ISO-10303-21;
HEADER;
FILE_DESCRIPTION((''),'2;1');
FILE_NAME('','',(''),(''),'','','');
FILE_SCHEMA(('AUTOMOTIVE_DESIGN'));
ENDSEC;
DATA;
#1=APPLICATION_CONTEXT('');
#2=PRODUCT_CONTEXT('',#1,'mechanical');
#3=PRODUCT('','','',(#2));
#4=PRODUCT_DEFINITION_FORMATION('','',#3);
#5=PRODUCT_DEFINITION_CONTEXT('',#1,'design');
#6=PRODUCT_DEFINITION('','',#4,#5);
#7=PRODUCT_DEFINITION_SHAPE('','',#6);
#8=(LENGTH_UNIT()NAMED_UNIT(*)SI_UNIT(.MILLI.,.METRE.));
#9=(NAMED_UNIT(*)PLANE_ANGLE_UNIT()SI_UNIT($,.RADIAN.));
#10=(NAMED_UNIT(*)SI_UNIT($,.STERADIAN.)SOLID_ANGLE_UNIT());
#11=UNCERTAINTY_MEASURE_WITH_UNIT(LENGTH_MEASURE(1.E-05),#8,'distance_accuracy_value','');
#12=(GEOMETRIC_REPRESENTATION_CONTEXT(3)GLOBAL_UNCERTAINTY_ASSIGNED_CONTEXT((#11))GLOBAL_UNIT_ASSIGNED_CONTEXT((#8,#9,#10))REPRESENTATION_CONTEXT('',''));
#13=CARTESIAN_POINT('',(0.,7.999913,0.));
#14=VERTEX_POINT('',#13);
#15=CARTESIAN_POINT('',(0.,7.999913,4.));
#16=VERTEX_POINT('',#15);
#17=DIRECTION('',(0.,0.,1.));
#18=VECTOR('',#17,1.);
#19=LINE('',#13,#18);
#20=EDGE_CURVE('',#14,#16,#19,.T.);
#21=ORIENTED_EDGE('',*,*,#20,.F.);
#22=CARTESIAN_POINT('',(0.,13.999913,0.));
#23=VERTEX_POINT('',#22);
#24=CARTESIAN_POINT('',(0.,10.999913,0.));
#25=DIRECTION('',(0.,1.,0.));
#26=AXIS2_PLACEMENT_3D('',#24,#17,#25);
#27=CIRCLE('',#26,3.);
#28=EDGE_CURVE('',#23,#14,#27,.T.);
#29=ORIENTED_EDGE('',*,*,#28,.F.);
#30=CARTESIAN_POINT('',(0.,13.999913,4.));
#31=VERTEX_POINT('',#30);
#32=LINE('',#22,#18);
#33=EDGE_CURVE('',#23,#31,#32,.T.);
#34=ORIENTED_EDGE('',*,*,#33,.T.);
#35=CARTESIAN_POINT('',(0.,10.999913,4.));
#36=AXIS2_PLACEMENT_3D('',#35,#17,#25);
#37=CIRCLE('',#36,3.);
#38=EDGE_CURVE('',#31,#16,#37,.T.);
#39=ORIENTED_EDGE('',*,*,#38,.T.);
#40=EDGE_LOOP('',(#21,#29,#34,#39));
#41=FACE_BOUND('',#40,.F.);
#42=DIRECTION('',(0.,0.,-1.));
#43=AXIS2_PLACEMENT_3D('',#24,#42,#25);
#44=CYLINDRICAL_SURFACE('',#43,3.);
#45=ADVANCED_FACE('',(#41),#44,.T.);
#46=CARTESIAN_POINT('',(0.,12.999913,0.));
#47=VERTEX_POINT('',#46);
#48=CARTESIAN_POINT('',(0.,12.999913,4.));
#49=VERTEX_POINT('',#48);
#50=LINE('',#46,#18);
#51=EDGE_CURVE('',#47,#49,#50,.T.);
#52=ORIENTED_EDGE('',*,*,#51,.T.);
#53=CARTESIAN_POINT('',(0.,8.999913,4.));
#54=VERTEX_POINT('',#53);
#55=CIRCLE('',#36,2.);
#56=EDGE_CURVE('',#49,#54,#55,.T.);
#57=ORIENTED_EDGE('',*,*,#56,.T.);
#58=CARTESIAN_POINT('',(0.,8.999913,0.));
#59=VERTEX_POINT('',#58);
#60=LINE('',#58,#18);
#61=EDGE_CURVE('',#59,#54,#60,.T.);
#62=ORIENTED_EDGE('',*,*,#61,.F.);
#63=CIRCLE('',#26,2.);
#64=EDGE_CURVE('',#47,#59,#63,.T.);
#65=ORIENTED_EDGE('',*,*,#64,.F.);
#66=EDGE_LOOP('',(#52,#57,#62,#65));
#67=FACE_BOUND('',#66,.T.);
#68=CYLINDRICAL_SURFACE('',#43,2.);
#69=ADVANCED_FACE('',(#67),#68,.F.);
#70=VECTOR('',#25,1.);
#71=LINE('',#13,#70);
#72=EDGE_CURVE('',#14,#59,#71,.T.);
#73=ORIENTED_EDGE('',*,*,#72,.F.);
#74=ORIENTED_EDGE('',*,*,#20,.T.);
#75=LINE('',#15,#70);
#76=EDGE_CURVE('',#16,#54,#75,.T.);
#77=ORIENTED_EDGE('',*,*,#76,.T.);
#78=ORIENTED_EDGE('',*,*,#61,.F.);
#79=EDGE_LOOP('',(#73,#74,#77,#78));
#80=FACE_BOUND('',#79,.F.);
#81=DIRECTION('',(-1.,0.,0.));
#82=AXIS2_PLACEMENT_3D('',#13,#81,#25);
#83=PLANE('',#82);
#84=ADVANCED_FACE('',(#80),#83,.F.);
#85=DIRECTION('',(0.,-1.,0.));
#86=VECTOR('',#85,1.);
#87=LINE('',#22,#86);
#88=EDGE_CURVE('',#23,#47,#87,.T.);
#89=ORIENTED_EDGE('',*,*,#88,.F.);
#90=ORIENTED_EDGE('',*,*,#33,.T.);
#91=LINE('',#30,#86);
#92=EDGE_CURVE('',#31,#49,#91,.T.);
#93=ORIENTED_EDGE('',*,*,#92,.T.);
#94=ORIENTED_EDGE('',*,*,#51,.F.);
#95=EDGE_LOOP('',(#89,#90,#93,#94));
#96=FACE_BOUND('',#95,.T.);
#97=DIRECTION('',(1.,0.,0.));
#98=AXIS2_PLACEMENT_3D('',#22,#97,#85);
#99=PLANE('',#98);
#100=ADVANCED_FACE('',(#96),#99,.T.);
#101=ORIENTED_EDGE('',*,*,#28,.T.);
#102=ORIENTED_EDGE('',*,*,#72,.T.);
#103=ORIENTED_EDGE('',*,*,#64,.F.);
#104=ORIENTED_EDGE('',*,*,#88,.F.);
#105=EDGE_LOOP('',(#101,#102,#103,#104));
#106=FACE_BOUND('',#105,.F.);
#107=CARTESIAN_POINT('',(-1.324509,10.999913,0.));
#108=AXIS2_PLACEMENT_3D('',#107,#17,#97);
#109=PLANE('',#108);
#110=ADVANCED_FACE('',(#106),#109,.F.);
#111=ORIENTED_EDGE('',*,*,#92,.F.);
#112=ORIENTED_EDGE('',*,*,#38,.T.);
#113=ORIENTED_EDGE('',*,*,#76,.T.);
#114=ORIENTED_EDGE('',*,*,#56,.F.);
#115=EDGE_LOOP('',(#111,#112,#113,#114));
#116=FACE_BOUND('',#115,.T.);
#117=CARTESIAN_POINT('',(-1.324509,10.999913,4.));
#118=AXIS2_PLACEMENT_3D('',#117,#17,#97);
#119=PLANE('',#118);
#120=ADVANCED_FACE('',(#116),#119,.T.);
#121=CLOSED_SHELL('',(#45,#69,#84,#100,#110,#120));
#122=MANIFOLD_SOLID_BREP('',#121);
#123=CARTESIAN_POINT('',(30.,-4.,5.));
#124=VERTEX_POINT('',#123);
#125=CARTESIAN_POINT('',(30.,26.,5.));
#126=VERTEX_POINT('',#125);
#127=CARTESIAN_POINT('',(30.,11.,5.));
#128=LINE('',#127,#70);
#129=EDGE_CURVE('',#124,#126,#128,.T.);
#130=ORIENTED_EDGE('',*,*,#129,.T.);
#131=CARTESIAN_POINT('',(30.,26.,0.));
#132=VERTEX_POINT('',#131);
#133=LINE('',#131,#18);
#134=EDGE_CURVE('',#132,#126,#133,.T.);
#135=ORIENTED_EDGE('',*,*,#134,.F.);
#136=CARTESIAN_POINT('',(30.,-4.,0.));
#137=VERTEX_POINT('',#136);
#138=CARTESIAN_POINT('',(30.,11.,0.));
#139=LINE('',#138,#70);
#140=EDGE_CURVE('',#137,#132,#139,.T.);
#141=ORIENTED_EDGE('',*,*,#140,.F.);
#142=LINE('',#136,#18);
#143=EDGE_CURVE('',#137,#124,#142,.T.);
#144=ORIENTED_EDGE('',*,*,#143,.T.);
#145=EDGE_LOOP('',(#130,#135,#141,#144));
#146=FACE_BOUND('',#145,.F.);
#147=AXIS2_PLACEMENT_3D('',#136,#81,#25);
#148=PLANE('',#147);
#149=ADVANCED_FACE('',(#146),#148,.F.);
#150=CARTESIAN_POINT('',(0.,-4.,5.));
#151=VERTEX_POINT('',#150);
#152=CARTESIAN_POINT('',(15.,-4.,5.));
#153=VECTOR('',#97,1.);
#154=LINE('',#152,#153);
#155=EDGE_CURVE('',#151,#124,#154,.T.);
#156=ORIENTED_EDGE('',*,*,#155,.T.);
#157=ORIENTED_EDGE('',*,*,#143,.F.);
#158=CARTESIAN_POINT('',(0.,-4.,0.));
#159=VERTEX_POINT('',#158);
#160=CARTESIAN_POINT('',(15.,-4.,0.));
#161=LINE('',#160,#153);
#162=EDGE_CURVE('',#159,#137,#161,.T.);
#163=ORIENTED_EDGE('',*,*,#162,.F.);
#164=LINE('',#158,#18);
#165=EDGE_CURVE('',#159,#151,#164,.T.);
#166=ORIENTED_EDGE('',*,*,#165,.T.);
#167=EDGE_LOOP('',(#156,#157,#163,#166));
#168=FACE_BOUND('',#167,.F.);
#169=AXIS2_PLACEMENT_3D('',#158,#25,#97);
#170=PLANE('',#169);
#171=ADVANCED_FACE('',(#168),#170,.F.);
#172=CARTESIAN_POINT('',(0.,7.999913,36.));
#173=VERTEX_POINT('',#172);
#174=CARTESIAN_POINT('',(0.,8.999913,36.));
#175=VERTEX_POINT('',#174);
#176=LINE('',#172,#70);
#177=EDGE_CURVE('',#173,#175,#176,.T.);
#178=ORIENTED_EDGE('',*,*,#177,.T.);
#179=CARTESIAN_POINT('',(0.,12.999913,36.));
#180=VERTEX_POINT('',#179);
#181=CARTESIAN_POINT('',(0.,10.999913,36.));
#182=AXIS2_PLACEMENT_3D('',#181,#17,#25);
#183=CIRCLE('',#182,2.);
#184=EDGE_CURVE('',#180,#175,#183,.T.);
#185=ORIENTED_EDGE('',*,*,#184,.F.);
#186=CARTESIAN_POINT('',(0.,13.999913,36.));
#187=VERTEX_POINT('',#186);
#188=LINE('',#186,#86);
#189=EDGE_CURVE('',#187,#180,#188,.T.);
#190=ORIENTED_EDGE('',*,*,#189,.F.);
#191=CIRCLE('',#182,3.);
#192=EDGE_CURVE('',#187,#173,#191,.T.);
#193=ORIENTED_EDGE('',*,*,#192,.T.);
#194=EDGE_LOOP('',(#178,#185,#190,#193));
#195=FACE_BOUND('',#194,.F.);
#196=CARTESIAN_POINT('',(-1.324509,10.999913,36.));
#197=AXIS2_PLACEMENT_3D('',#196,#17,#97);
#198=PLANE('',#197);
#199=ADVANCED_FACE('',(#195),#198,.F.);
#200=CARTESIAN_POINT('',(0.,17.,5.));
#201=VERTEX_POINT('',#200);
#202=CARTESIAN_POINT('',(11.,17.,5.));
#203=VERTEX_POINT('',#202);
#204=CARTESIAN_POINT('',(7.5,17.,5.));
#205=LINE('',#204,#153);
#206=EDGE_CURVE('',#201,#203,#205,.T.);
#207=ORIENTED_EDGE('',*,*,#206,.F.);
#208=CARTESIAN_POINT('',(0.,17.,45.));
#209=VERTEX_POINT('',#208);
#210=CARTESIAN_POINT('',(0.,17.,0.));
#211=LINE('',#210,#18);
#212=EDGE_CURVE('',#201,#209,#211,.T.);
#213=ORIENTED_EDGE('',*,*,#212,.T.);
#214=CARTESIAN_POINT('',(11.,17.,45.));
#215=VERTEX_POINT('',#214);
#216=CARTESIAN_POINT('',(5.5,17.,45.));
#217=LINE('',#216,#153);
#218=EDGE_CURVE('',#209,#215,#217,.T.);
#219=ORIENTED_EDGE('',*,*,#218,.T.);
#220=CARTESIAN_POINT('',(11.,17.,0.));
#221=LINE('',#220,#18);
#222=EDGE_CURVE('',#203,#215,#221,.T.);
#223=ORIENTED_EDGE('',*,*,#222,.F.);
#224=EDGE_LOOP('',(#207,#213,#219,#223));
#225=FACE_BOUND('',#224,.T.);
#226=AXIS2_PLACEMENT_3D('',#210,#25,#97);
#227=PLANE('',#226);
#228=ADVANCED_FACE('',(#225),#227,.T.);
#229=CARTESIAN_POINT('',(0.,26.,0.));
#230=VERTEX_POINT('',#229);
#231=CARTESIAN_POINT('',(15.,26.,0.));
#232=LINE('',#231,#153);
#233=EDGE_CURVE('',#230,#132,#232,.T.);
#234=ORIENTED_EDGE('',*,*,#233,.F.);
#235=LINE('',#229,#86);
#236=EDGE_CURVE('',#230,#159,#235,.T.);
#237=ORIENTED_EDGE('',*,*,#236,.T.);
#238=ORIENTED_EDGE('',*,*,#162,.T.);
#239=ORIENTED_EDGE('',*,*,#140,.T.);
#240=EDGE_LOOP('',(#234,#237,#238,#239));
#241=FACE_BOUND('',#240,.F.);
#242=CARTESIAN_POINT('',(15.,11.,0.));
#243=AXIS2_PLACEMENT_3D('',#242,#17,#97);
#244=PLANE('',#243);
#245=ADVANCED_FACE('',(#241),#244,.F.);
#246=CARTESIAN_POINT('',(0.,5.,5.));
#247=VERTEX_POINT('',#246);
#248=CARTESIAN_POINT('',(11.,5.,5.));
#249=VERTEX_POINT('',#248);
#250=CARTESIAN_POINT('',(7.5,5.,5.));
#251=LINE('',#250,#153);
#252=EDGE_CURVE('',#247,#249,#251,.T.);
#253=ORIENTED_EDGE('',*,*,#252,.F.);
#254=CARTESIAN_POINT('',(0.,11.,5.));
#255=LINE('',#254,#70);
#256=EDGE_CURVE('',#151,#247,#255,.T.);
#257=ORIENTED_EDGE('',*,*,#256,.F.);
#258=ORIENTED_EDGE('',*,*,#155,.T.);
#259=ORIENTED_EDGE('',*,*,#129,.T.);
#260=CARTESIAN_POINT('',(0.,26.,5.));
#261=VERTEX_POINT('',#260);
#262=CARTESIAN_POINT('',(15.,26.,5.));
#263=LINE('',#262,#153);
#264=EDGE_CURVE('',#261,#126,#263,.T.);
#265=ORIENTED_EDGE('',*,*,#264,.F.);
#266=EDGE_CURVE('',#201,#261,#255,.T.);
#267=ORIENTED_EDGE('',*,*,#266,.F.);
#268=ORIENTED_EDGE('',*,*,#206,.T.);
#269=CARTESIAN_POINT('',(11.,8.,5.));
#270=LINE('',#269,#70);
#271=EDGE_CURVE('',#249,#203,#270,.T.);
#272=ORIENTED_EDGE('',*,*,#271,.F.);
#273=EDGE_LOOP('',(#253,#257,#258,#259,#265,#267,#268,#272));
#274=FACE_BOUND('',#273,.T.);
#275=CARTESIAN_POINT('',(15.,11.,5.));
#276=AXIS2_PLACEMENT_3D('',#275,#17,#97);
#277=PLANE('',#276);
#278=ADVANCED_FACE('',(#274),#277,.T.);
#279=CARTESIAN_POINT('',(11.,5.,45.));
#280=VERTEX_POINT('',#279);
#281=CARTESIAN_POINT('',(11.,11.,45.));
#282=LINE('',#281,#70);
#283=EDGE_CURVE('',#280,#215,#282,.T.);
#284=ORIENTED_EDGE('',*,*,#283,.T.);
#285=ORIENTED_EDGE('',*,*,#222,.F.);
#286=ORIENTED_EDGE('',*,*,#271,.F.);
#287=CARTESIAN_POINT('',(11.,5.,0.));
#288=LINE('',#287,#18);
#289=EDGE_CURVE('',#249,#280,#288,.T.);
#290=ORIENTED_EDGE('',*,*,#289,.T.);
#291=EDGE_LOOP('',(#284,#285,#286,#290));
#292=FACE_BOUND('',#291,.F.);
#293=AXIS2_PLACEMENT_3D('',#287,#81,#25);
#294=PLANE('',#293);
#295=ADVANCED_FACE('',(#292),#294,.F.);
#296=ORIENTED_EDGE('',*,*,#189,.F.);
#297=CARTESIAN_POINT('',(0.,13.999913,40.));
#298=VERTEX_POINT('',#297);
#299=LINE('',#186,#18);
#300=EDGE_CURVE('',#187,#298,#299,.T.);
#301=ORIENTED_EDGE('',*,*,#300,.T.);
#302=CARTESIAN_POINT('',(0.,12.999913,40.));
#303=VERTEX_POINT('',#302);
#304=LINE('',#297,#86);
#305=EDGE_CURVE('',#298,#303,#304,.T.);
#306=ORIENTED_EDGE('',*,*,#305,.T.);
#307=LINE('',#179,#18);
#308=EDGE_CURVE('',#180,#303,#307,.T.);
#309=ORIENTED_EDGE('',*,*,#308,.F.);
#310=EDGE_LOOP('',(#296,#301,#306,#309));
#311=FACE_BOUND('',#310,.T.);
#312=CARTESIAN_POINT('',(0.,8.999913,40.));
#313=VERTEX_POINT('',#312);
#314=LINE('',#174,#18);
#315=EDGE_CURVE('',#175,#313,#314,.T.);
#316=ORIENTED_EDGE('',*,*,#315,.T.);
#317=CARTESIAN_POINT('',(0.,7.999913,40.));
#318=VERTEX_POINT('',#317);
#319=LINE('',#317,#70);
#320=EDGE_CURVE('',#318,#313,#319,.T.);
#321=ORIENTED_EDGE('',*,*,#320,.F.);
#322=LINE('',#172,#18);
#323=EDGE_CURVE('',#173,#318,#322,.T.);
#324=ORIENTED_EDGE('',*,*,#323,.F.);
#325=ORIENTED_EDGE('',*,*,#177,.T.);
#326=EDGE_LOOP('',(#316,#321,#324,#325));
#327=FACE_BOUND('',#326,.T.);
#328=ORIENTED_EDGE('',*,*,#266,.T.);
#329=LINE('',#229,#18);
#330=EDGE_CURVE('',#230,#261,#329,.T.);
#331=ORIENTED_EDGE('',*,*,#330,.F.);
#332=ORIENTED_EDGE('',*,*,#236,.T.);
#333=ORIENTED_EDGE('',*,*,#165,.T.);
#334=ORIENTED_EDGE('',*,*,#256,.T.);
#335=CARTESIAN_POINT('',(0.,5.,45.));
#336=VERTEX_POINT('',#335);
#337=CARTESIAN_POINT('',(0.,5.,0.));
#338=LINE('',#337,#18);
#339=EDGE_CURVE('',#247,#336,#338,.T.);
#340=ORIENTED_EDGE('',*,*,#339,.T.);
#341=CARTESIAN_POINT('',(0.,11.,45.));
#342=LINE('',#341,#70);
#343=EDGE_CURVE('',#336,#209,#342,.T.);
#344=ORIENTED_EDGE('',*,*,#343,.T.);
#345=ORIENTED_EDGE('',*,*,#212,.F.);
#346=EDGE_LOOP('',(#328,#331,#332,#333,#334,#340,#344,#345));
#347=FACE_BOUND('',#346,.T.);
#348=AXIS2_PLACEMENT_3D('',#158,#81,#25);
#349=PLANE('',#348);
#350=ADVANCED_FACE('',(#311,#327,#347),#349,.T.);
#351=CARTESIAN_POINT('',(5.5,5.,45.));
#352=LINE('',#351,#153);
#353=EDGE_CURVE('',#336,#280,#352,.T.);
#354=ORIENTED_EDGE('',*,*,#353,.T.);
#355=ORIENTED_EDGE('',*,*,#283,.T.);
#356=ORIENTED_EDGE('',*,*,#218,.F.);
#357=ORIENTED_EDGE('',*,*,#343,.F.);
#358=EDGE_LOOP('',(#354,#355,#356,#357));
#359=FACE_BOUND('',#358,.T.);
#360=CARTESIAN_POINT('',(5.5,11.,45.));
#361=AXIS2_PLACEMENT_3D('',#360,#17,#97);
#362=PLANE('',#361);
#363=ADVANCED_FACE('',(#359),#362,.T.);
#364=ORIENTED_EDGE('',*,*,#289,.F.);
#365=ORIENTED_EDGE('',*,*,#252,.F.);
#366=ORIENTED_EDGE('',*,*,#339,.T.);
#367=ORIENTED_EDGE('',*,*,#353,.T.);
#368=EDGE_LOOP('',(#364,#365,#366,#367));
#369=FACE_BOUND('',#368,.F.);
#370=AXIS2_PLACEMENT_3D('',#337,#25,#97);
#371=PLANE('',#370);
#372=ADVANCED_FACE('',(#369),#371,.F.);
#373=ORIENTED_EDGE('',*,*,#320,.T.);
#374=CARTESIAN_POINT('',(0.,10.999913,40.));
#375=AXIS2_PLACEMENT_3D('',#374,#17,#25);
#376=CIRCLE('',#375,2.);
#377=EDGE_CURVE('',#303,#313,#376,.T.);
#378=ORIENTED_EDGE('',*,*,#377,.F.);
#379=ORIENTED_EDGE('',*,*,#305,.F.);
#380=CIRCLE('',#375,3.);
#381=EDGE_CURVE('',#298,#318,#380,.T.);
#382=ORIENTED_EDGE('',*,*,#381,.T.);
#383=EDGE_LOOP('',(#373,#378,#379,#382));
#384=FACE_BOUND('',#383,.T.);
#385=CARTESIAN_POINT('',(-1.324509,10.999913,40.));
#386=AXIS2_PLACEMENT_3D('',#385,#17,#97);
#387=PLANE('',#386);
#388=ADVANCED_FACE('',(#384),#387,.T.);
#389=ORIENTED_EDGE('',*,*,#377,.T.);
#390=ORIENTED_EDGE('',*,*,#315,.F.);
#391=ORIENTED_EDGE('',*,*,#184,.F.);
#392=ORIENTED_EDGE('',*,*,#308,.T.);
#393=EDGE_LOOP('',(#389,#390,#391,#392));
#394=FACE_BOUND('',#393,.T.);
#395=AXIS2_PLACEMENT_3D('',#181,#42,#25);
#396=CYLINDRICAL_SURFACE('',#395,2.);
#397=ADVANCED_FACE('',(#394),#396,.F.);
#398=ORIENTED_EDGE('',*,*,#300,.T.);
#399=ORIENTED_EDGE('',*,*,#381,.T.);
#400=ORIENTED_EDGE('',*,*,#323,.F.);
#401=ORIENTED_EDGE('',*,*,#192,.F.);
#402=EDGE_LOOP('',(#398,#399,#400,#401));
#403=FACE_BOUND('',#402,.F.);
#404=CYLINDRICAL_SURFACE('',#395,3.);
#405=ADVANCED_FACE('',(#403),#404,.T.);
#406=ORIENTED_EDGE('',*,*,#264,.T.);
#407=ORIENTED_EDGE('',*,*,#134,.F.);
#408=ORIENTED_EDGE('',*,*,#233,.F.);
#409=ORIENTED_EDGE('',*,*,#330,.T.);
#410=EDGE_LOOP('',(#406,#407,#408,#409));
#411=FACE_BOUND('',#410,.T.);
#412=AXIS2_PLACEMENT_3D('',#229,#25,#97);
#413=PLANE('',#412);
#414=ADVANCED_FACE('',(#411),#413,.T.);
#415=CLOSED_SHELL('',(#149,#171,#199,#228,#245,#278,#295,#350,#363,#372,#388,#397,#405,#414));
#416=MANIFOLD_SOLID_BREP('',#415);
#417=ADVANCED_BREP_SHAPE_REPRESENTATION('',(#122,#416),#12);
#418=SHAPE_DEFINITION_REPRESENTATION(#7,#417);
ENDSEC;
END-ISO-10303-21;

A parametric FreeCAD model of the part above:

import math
import FreeCAD as App
import Part
import Sketcher
from FreeCAD import Vector


def add_polygon(sketch, points):
    """Adds a closed chain of lines whose ends are joined by coincident constraints."""
    first, n = sketch.GeometryCount, len(points)
    for a, b in zip(points, points[1:] + points[:1]):
        sketch.addGeometry(Part.LineSegment(App.Vector(*a, 0), App.Vector(*b, 0)), False)
    for i in range(n):
        sketch.addConstraint(Sketcher.Constraint("Coincident", first + i, 2, first + (i + 1) % n, 1))

doc = App.newDocument("Part")
body = doc.addObject("PartDesign::Body", "Body")

# Sketch on XY plane
sketch1 = doc.addObject("Sketcher::SketchObject", "Sketch")
body.addObject(sketch1)
sketch1.AttachmentSupport = (doc.XY_Plane, [""])
sketch1.MapMode = "FlatFace"
sketch1.addGeometry(Part.ArcOfCircle(Part.Circle(Vector(0, 10.999913, 0), Vector(0, 0, 1), 3), math.radians(90), math.radians(270)), False)
sketch1.addGeometry(Part.LineSegment(Vector(0, 7.999913, 0), Vector(0, 8.999913, 0)), False)
sketch1.addGeometry(Part.ArcOfCircle(Part.Circle(Vector(0, 10.999913, 0), Vector(0, 0, 1), 2), math.radians(90), math.radians(270)), False)
sketch1.addGeometry(Part.LineSegment(Vector(0, 12.999913, 0), Vector(0, 13.999913, 0)), False)
sketch1.addConstraint(Sketcher.Constraint("Coincident", 0, 2, 1, 1))
sketch1.addConstraint(Sketcher.Constraint("Coincident", 1, 2, 2, 2))
sketch1.addConstraint(Sketcher.Constraint("Coincident", 2, 1, 3, 1))
sketch1.addConstraint(Sketcher.Constraint("Coincident", 3, 2, 0, 1))
sketch1.addConstraint(Sketcher.Constraint("Vertical", 1))
sketch1.addConstraint(Sketcher.Constraint("Vertical", 3))
sketch1.addConstraint(Sketcher.Constraint("Coincident", 2, 3, 0, 3))
sketch1.addConstraint(Sketcher.Constraint("PointOnObject", 0, 3, -2))
sketch1.addConstraint(Sketcher.Constraint("PointOnObject", 0, 2, -2))
sketch1.addConstraint(Sketcher.Constraint("PointOnObject", 2, 1, -2))
sketch1.addConstraint(Sketcher.Constraint("Radius", 0, 3.0))
sketch1.addConstraint(Sketcher.Constraint("Radius", 2, 2.0))
sketch1.addConstraint(Sketcher.Constraint("DistanceY", -1, 1, 0, 3, 10.999913))
pad1 = doc.addObject("PartDesign::Pad", "Pad")
body.addObject(pad1)
pad1.Profile = sketch1
pad1.Length = 4
body2 = doc.addObject("PartDesign::Body", "Body001")

# Sketch on XY plane
sketch2 = doc.addObject("Sketcher::SketchObject", "Sketch001")
body2.addObject(sketch2)
sketch2.AttachmentSupport = (doc.getObject("XY_Plane001"), [""])
sketch2.MapMode = "FlatFace"
sketch2.addGeometry(Part.ArcOfCircle(Part.Circle(Vector(0, 10.999913, 0), Vector(0, 0, 1), 3), math.radians(90), math.radians(270)), False)
sketch2.addGeometry(Part.LineSegment(Vector(0, 7.999913, 0), Vector(0, 8.999913, 0)), False)
sketch2.addGeometry(Part.ArcOfCircle(Part.Circle(Vector(0, 10.999913, 0), Vector(0, 0, 1), 2), math.radians(90), math.radians(270)), False)
sketch2.addGeometry(Part.LineSegment(Vector(0, 12.999913, 0), Vector(0, 13.999913, 0)), False)
sketch2.addConstraint(Sketcher.Constraint("Coincident", 0, 2, 1, 1))
sketch2.addConstraint(Sketcher.Constraint("Coincident", 1, 2, 2, 2))
sketch2.addConstraint(Sketcher.Constraint("Coincident", 2, 1, 3, 1))
sketch2.addConstraint(Sketcher.Constraint("Coincident", 3, 2, 0, 1))
sketch2.addConstraint(Sketcher.Constraint("Vertical", 1))
sketch2.addConstraint(Sketcher.Constraint("Vertical", 3))
sketch2.addConstraint(Sketcher.Constraint("Coincident", 2, 3, 0, 3))
sketch2.addConstraint(Sketcher.Constraint("PointOnObject", 0, 3, -2))
sketch2.addConstraint(Sketcher.Constraint("PointOnObject", 0, 2, -2))
sketch2.addConstraint(Sketcher.Constraint("PointOnObject", 2, 1, -2))
sketch2.addConstraint(Sketcher.Constraint("Radius", 0, 3.0))
sketch2.addConstraint(Sketcher.Constraint("Radius", 2, 2.0))
sketch2.addConstraint(Sketcher.Constraint("DistanceY", -1, 1, 0, 3, 10.999913))
pad2 = doc.addObject("PartDesign::Pad", "Pad001")
body2.addObject(pad2)
pad2.Profile = sketch2
pad2.Length = 4
body3 = doc.addObject("PartDesign::Body", "Body002")
doc.recompute()

body2.Placement = App.Placement(Vector(0, 0, 36), App.Rotation(Vector(0, 0, 1), 0))
boolean = doc.addObject("PartDesign::Boolean", "Boolean")
body3.addObject(boolean)
boolean.Type = "Fuse"
boolean.addObjects([body2])
body4 = doc.addObject("PartDesign::Body", "Body003")
body4.AllowCompound = True

# Sketch on XY plane
sketch3 = doc.addObject("Sketcher::SketchObject", "Sketch002")
body4.addObject(sketch3)
sketch3.AttachmentSupport = (doc.getObject("XY_Plane003"), [""])
sketch3.MapMode = "FlatFace"
add_polygon(sketch3, [(0, 26), (0, -4), (30, -4), (30, 26)])  # lines 0-3
sketch3.addConstraint(Sketcher.Constraint("Vertical", 0))
sketch3.addConstraint(Sketcher.Constraint("Horizontal", 1))
sketch3.addConstraint(Sketcher.Constraint("Vertical", 2))
sketch3.addConstraint(Sketcher.Constraint("Horizontal", 3))
sketch3.addConstraint(Sketcher.Constraint("PointOnObject", 0, 2, -2))
sketch3.addConstraint(Sketcher.Constraint("Equal", 3, 0))
sketch3.addConstraint(Sketcher.Constraint("DistanceX", 1, 1, 1, 2, 30.0))
sketch3.addConstraint(Sketcher.Constraint("DistanceY", 0, 2, -1, 1, 4.0))
pad3 = doc.addObject("PartDesign::Pad", "Pad002")
body4.addObject(pad3)
pad3.Profile = sketch3
pad3.Length = 5
doc.recompute()

boolean2 = doc.addObject("PartDesign::Boolean", "Boolean001")
body4.addObject(boolean2)
boolean2.Type = "Fuse"
boolean2.addObjects([body3])
body5 = doc.addObject("PartDesign::Body", "Body004")

# Sketch on XY plane
sketch4 = doc.addObject("Sketcher::SketchObject", "Sketch003")
body5.addObject(sketch4)
sketch4.AttachmentSupport = (doc.getObject("XY_Plane004"), [""])
sketch4.MapMode = "FlatFace"
add_polygon(sketch4, [(0, 17), (0, 5), (11, 5), (11, 17)])  # lines 0-3
sketch4.addConstraint(Sketcher.Constraint("Vertical", 0))
sketch4.addConstraint(Sketcher.Constraint("Horizontal", 1))
sketch4.addConstraint(Sketcher.Constraint("Vertical", 2))
sketch4.addConstraint(Sketcher.Constraint("Horizontal", 3))
sketch4.addConstraint(Sketcher.Constraint("PointOnObject", 0, 2, -2))
sketch4.addConstraint(Sketcher.Constraint("DistanceX", 1, 1, 1, 2, 11.0))
sketch4.addConstraint(Sketcher.Constraint("DistanceY", 0, 2, 0, 1, 12.0))
sketch4.addConstraint(Sketcher.Constraint("DistanceY", -1, 1, 0, 2, 5.0))
pad4 = doc.addObject("PartDesign::Pad", "Pad003")
body5.addObject(pad4)
pad4.Profile = sketch4
pad4.Length = 45
doc.recompute()

boolean3 = doc.addObject("PartDesign::Boolean", "Boolean002")
body5.addObject(boolean3)
boolean3.Type = "Fuse"
boolean3.addObjects([body4])

doc.recompute()
